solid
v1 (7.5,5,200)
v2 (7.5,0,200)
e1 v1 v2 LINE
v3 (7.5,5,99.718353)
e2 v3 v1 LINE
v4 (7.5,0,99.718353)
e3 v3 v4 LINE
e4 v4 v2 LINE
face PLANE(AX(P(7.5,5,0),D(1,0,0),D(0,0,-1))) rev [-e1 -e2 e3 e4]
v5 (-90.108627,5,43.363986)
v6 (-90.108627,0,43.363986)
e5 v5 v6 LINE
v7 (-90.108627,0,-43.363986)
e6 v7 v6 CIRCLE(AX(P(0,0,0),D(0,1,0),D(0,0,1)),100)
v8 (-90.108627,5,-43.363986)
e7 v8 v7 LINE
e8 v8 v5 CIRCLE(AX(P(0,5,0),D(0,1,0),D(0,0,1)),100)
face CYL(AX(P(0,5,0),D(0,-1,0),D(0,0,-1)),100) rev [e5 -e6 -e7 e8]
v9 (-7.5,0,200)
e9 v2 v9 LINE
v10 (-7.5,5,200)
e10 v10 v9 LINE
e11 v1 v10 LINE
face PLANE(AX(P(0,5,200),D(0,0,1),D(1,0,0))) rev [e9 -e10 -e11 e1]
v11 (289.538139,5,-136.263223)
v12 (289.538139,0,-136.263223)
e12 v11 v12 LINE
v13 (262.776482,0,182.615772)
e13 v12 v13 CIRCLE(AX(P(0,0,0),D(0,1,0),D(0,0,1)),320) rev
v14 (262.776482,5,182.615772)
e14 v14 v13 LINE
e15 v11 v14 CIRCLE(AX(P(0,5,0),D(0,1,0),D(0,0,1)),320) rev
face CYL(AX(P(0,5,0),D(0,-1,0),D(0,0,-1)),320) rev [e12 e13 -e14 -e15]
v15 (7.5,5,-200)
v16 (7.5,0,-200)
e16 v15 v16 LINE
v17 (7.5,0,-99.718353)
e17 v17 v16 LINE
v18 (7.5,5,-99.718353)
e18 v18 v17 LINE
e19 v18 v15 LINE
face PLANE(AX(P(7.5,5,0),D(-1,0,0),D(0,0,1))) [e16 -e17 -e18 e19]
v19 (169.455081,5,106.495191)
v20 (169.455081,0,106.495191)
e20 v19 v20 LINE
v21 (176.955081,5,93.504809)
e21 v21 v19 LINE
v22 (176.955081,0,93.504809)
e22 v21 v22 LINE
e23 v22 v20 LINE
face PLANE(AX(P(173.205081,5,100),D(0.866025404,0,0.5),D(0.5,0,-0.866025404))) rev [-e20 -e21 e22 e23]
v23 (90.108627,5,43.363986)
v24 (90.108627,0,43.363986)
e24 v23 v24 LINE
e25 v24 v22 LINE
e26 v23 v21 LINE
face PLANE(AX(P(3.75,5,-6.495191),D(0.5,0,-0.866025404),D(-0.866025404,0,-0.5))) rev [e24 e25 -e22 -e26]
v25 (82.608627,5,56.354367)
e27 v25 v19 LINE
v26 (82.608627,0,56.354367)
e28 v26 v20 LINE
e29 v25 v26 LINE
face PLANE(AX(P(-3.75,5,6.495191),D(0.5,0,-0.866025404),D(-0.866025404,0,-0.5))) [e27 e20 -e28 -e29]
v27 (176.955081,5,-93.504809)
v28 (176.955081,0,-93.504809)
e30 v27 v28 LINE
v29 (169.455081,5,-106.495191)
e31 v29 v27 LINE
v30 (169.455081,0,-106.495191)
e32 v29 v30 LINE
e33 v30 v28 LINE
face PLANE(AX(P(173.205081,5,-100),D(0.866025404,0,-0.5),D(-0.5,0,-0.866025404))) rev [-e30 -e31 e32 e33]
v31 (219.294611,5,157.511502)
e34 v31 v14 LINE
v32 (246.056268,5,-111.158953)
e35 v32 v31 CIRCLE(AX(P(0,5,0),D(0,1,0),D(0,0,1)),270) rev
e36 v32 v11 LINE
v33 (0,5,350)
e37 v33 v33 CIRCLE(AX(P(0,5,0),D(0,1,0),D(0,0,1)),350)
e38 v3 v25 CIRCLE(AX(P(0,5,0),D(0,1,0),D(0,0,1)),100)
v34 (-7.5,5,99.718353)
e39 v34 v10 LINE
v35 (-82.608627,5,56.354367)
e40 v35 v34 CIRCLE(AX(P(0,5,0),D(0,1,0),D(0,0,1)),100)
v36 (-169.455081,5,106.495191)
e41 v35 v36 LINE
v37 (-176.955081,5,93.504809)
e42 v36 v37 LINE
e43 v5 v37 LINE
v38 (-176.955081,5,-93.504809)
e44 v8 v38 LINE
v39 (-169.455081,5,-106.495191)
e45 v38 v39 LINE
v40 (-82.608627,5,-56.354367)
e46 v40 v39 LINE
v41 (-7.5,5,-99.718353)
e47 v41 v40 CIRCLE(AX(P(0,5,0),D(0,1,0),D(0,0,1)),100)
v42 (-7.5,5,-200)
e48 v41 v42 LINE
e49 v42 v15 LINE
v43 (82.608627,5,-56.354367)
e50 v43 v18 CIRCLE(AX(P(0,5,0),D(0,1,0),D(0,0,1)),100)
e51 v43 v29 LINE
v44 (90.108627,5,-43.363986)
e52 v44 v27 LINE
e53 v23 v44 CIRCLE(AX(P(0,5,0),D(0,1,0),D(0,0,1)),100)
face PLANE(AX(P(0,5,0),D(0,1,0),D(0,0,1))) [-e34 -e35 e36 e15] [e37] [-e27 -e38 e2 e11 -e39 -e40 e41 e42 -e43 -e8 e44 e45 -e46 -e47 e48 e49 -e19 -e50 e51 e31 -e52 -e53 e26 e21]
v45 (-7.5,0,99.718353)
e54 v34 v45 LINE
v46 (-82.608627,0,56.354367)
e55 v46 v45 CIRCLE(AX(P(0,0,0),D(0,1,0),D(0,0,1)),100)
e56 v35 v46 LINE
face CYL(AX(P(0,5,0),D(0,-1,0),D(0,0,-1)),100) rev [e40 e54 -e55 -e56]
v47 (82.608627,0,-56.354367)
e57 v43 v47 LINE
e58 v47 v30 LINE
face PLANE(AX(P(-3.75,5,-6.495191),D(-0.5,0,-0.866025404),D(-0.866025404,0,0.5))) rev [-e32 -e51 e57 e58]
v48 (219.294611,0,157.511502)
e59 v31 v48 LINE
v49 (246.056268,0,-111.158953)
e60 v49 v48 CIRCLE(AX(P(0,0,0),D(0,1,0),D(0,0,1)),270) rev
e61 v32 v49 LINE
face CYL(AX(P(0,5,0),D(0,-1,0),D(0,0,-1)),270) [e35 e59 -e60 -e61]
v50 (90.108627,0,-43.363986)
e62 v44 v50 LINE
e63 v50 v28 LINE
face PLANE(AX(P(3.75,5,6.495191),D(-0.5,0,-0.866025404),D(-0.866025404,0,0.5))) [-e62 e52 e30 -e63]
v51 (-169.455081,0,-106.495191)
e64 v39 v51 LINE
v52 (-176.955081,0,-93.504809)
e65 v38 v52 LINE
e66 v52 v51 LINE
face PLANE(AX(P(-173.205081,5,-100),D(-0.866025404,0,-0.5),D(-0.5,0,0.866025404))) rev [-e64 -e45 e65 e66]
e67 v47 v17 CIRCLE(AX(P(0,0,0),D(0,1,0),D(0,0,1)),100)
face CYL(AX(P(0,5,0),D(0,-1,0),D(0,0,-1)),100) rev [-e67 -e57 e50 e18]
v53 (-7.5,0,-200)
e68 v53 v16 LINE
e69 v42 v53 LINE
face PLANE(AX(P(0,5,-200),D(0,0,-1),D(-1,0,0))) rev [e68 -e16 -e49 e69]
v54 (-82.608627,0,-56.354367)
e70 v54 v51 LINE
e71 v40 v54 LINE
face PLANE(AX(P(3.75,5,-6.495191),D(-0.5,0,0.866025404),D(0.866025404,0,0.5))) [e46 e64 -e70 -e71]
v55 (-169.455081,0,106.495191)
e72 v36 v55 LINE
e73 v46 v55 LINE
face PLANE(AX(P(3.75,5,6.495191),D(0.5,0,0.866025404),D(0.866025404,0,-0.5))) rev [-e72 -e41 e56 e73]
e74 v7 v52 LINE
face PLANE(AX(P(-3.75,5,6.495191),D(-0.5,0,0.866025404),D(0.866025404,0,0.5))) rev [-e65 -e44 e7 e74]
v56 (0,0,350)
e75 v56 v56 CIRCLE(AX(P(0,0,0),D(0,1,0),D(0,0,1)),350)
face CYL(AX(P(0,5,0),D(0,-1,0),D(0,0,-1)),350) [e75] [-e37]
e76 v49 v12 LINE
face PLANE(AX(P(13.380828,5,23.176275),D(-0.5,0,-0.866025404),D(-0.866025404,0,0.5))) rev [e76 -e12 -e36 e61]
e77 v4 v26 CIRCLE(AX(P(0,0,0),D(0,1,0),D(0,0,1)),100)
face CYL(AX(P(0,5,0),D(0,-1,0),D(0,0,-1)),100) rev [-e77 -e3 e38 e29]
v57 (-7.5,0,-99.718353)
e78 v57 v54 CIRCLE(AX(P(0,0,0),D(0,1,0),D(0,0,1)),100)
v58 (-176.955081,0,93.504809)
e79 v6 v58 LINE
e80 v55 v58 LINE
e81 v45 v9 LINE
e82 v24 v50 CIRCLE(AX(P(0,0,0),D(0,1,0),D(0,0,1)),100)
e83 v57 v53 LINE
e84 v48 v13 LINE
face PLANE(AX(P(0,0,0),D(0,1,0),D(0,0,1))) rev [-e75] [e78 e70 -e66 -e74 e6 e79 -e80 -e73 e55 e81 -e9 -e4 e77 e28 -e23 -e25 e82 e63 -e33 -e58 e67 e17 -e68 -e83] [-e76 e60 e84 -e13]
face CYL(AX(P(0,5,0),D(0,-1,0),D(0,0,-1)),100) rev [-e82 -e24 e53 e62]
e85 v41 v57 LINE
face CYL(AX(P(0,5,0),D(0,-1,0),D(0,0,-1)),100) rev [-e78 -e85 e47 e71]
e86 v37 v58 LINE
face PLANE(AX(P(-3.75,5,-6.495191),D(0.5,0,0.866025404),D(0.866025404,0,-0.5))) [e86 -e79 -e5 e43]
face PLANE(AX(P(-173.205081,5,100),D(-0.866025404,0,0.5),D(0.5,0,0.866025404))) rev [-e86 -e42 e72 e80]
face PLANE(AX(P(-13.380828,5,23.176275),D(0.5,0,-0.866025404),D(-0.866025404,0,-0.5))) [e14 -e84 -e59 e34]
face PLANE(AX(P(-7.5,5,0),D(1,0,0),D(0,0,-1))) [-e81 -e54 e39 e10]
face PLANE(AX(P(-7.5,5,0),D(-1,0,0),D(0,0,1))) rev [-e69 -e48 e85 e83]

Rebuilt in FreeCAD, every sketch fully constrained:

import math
import FreeCAD as App
import Part
import Sketcher
from FreeCAD import Vector
Q = App.Units.Quantity

doc = App.newDocument("Part")
body = doc.addObject("PartDesign::Body", "Body")

# Sketch on XZ plane
sketch1 = body.newObject("Sketcher::SketchObject", "Sketch")
sketch1.AttachmentSupport = (doc.getObject("XZ_Plane"), [""])
sketch1.MapMode = "FlatFace"
sketch1.addGeometry([
    Part.Circle(Vector(0, 0, 0), Vector(0, 0, 1), 350),  # 0
    Part.ArcOfCircle(Part.Circle(Vector(0, 0, 0), Vector(0, 0, 1), 100), math.radians(-85.698778), math.radians(-34.301222)),  # 1
    Part.LineSegment(Vector(82.608627, -56.354367, 0), Vector(169.455081, -106.495191, 0)),  # 2
    Part.LineSegment(Vector(169.455081, -106.495191, 0), Vector(176.955081, -93.504809, 0)),  # 3
    Part.LineSegment(Vector(176.955081, -93.504809, 0), Vector(90.108627, -43.363986, 0)),  # 4
    Part.ArcOfCircle(Part.Circle(Vector(0, 0, 0), Vector(0, 0, 1), 100), math.radians(-25.698778), math.radians(25.698778)),  # 5
    Part.LineSegment(Vector(90.108627, 43.363986, 0), Vector(176.955081, 93.504809, 0)),  # 6
    Part.LineSegment(Vector(176.955081, 93.504809, 0), Vector(169.455081, 106.495191, 0)),  # 7
    Part.LineSegment(Vector(169.455081, 106.495191, 0), Vector(82.608627, 56.354367, 0)),  # 8
    Part.ArcOfCircle(Part.Circle(Vector(0, 0, 0), Vector(0, 0, 1), 100), math.radians(34.301222), math.radians(85.698778)),  # 9
    Part.LineSegment(Vector(7.5, 99.718353, 0), Vector(7.5, 200, 0)),  # 10
    Part.LineSegment(Vector(7.5, 200, 0), Vector(-7.5, 200, 0)),  # 11
    Part.LineSegment(Vector(-7.5, 200, 0), Vector(-7.5, 99.718353, 0)),  # 12
    Part.ArcOfCircle(Part.Circle(Vector(0, 0, 0), Vector(0, 0, 1), 100), math.radians(94.301222), math.radians(145.698778)),  # 13
    Part.LineSegment(Vector(-82.608627, 56.354367, 0), Vector(-169.455081, 106.495191, 0)),  # 14
    Part.LineSegment(Vector(-169.455081, 106.495191, 0), Vector(-176.955081, 93.504809, 0)),  # 15
    Part.LineSegment(Vector(-176.955081, 93.504809, 0), Vector(-90.108627, 43.363986, 0)),  # 16
    Part.ArcOfCircle(Part.Circle(Vector(0, 0, 0), Vector(0, 0, 1), 100), math.radians(154.301222), math.radians(205.698778)),  # 17
    Part.LineSegment(Vector(-90.108627, -43.363986, 0), Vector(-176.955081, -93.504809, 0)),  # 18
    Part.LineSegment(Vector(-176.955081, -93.504809, 0), Vector(-169.455081, -106.495191, 0)),  # 19
    Part.LineSegment(Vector(-169.455081, -106.495191, 0), Vector(-82.608627, -56.354367, 0)),  # 20
    Part.ArcOfCircle(Part.Circle(Vector(0, 0, 0), Vector(0, 0, 1), 100), math.radians(-145.698778), math.radians(-94.301222)),  # 21
    Part.LineSegment(Vector(-7.5, -99.718353, 0), Vector(-7.5, -200, 0)),  # 22
    Part.LineSegment(Vector(-7.5, -200, 0), Vector(7.5, -200, 0)),  # 23
    Part.LineSegment(Vector(7.5, -200, 0), Vector(7.5, -99.718353, 0)),  # 24
    Part.ArcOfCircle(Part.Circle(Vector(0, 0, 0), Vector(0, 0, 1), 270), math.radians(-24.31166), math.radians(35.68834)),  # 25
    Part.LineSegment(Vector(246.056268, -111.158953, 0), Vector(289.538139, -136.263223, 0)),  # 26
    Part.ArcOfCircle(Part.Circle(Vector(0, 0, 0), Vector(0, 0, 1), 320), math.radians(-25.202741), math.radians(34.797259)),  # 27
    Part.LineSegment(Vector(262.776482, 182.615772, 0), Vector(219.294611, 157.511502, 0)),  # 28
], False)
sketch1.addConstraint([
    Sketcher.Constraint("Coincident", 1, 2, 2, 1),
    Sketcher.Constraint("Coincident", 2, 2, 3, 1),
    Sketcher.Constraint("Coincident", 3, 2, 4, 1),
    Sketcher.Constraint("Coincident", 4, 2, 5, 1),
    Sketcher.Constraint("Coincident", 5, 2, 6, 1),
    Sketcher.Constraint("Coincident", 6, 2, 7, 1),
    Sketcher.Constraint("Coincident", 7, 2, 8, 1),
    Sketcher.Constraint("Coincident", 8, 2, 9, 1),
    Sketcher.Constraint("Coincident", 9, 2, 10, 1),
    Sketcher.Constraint("Coincident", 10, 2, 11, 1),
    Sketcher.Constraint("Coincident", 11, 2, 12, 1),
    Sketcher.Constraint("Coincident", 12, 2, 13, 1),
    Sketcher.Constraint("Coincident", 13, 2, 14, 1),
    Sketcher.Constraint("Coincident", 14, 2, 15, 1),
    Sketcher.Constraint("Coincident", 15, 2, 16, 1),
    Sketcher.Constraint("Coincident", 16, 2, 17, 1),
    Sketcher.Constraint("Coincident", 17, 2, 18, 1),
    Sketcher.Constraint("Coincident", 18, 2, 19, 1),
    Sketcher.Constraint("Coincident", 19, 2, 20, 1),
    Sketcher.Constraint("Coincident", 20, 2, 21, 1),
    Sketcher.Constraint("Coincident", 21, 2, 22, 1),
    Sketcher.Constraint("Coincident", 22, 2, 23, 1),
    Sketcher.Constraint("Coincident", 23, 2, 24, 1),
    Sketcher.Constraint("Coincident", 24, 2, 1, 1),
    Sketcher.Constraint("Coincident", 25, 1, 26, 1),
    Sketcher.Constraint("Coincident", 26, 2, 27, 1),
    Sketcher.Constraint("Coincident", 27, 2, 28, 1),
    Sketcher.Constraint("Coincident", 28, 2, 25, 2),
    Sketcher.Constraint("Vertical", 10),
    Sketcher.Constraint("Horizontal", 11),
    Sketcher.Constraint("Vertical", 12),
    Sketcher.Constraint("Vertical", 22),
    Sketcher.Constraint("Horizontal", 23),
    Sketcher.Constraint("Vertical", 24),
    Sketcher.Constraint("Coincident", 0, 3, -1, 1),
    Sketcher.Constraint("Coincident", 1, 3, -1, 1),
    Sketcher.Constraint("Coincident", 5, 3, -1, 1),
    Sketcher.Constraint("Coincident", 9, 3, -1, 1),
    Sketcher.Constraint("Coincident", 13, 3, -1, 1),
    Sketcher.Constraint("Coincident", 17, 3, -1, 1),
    Sketcher.Constraint("Coincident", 21, 3, -1, 1),
    Sketcher.Constraint("Coincident", 25, 3, -1, 1),
    Sketcher.Constraint("Coincident", 27, 3, -1, 1),
    Sketcher.Constraint("Equal", 1, 5),
    Sketcher.Constraint("Equal", 5, 9),
    Sketcher.Constraint("Equal", 9, 13),
    Sketcher.Constraint("Equal", 13, 17),
    Sketcher.Constraint("Equal", 17, 21),
    Sketcher.Constraint("Symmetric", 2, 2, 14, 2, -1, 1),
    Sketcher.Constraint("Symmetric", 3, 2, 15, 2, -1, 1),
    Sketcher.Constraint("Symmetric", 6, 2, 18, 2, -1, 1),
    Sketcher.Constraint("Symmetric", 7, 2, 19, 2, -1, 1),
    Sketcher.Constraint("Symmetric", 10, 2, 22, 2, -1, 1),
    Sketcher.Constraint("Symmetric", 7, 2, 14, 2, -2),
    Sketcher.Constraint("Symmetric", 6, 2, 15, 2, -2),
    Sketcher.Constraint("Perpendicular", 2, 3),
    Sketcher.Constraint("Perpendicular", 3, 4),
    Sketcher.Constraint("Perpendicular", 6, 7),
    Sketcher.Constraint("Perpendicular", 7, 8),
    Sketcher.Constraint("Parallel", 4, 14),
    Sketcher.Constraint("Perpendicular", 15, 16),
    Sketcher.Constraint("Parallel", 8, 18),
    Sketcher.Constraint("Perpendicular", 19, 20),
    Sketcher.Constraint("Parallel", 16, 26),
    Sketcher.Constraint("Parallel", 20, 28),
    Sketcher.Constraint("Horizontal", 9, 2, 12, 2),
    Sketcher.Constraint("Horizontal", 21, 2, 24, 2),
    Sketcher.Constraint("Equal", 2, 4),
    Sketcher.Constraint("Equal", 26, 28),
    Sketcher.Constraint("Diameter", 0, Q("700 mm")),
    Sketcher.Constraint("Radius", 1, Q("100 mm")),
    Sketcher.Constraint("Radius", 25, Q("270 mm")),
    Sketcher.Constraint("Radius", 27, Q("320 mm")),
    Sketcher.Constraint("DistanceX", 11, 2, 11, 1, Q("15 mm")),
    Sketcher.Constraint("Angle", 2, Q("-30 deg")),
    Sketcher.Constraint("Distance", 3, Q("15 mm")),
    Sketcher.Constraint("DistanceY", -1, 1, 10, 2, Q("200 mm")),
    Sketcher.Constraint("Distance", 26, Q("50.20854 mm")),
    Sketcher.Constraint("DistanceX", -1, 1, 2, 2, Q("169.455081 mm")),
])
pad1 = body.newObject("PartDesign::Pad", "Pad")
pad1.Profile = sketch1
pad1.Length = 5
pad1.Reversed = True

doc.recompute()
